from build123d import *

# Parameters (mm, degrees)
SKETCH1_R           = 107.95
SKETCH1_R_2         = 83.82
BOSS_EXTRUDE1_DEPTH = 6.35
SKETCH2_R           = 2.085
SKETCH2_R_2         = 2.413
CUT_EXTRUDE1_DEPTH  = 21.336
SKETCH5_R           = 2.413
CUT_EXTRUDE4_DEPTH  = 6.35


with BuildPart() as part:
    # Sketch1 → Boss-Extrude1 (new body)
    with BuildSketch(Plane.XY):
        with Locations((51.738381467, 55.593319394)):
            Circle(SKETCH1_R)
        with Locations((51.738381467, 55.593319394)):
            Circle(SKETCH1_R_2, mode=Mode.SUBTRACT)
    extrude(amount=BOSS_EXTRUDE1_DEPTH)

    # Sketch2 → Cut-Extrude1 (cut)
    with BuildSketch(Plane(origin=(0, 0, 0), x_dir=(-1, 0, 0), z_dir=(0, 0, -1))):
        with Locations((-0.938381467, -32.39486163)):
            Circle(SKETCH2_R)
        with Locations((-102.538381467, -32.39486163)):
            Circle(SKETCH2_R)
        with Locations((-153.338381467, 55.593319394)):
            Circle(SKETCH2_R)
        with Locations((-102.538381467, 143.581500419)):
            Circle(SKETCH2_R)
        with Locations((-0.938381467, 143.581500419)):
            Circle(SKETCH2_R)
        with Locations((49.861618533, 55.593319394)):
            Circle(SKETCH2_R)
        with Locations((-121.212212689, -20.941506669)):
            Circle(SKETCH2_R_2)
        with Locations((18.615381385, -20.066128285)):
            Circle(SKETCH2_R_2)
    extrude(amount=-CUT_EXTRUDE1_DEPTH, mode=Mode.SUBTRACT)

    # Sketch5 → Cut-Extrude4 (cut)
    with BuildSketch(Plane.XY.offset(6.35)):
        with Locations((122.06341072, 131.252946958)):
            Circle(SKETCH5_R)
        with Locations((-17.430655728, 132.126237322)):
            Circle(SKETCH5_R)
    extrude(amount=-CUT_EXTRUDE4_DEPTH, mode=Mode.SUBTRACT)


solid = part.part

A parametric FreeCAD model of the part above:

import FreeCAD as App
import Part
import Sketcher
Q = App.Units.Quantity

doc = App.newDocument("Part")
body = doc.addObject("PartDesign::Body", "Body")

sketch1 = doc.addObject("Sketcher::SketchObject", "Sketch")
body.addObject(sketch1)
sketch1.AttachmentSupport = (doc.XY_Plane, [""])
sketch1.MapMode = "FlatFace"
sketch1.addGeometry([
    Part.Circle(App.Vector(52, 56, 0), App.Vector(0, 0, 1), 108),
    Part.Circle(App.Vector(52, 56, 0), App.Vector(0, 0, 1), 84),
], False)
sketch1.addConstraint([
    Sketcher.Constraint("Coincident", 1, 3, 0, 3),
    Sketcher.Constraint("Diameter", 0, Q("8.5 in")),
    Sketcher.Constraint("Diameter", 1, Q("6.6 in")),
    Sketcher.Constraint("DistanceX", -1, 1, 0, 3, 51.738381),
    Sketcher.Constraint("DistanceY", -1, 1, 0, 3, 55.593319),
])
pad1 = doc.addObject("PartDesign::Pad", "Pad")
body.addObject(pad1)
pad1.Profile = sketch1
pad1.Length = Q("0.25 in")

sketch2 = doc.addObject("Sketcher::SketchObject", "Sketch001")
body.addObject(sketch2)
sketch2.AttachmentSupport = (doc.XY_Plane, [""])
sketch2.MapMode = "FlatFace"
sketch2.addGeometry([
    Part.Circle(App.Vector(0.9, -32.4, 0), App.Vector(0, 0, 1), 2.1),
    Part.Circle(App.Vector(102.5, -32.4, 0), App.Vector(0, 0, 1), 2.1),
    Part.Circle(App.Vector(153.3, 55.6, 0), App.Vector(0, 0, 1), 2.1),
    Part.Circle(App.Vector(102.5, 143.6, 0), App.Vector(0, 0, 1), 2.1),
    Part.Circle(App.Vector(0.9, 143.6, 0), App.Vector(0, 0, 1), 2.1),
    Part.Circle(App.Vector(-49.9, 55.6, 0), App.Vector(0, 0, 1), 2.1),
    Part.Circle(App.Vector(121.2, -20.9, 0), App.Vector(0, 0, 1), 2.4),
    Part.Circle(App.Vector(-18.6, -20.1, 0), App.Vector(0, 0, 1), 2.4),
], False)
sketch2.addConstraint([
    Sketcher.Constraint("Equal", 0, 1),
    Sketcher.Constraint("Equal", 1, 2),
    Sketcher.Constraint("Equal", 2, 3),
    Sketcher.Constraint("Equal", 3, 4),
    Sketcher.Constraint("Equal", 4, 5),
    Sketcher.Constraint("Equal", 6, 7),
    Sketcher.Constraint("Horizontal", 0, 3, 1, 3),
    Sketcher.Constraint("Horizontal", 3, 3, 4, 3),
    Sketcher.Constraint("Horizontal", 2, 3, 5, 3),
    Sketcher.Constraint("Vertical", 1, 3, 3, 3),
    Sketcher.Constraint("Vertical", 0, 3, 4, 3),
    Sketcher.Constraint("Diameter", 6, Q("0.19 in")),
    Sketcher.Constraint("DistanceX", 0, 3, 1, 3, Q("4 in")),
    Sketcher.Constraint("DistanceX", 1, 3, 2, 3, Q("2 in")),
    Sketcher.Constraint("DistanceX", 5, 3, 0, 3, Q("2 in")),
    Sketcher.Constraint("Diameter", 0, 4.17),
    Sketcher.Constraint("DistanceY", -1, 1, 3, 3, 143.5815),
    Sketcher.Constraint("DistanceX", -1, 1, 0, 3, 0.938381),
    Sketcher.Constraint("DistanceY", 0, 3, -1, 1, 32.394862),
    Sketcher.Constraint("DistanceY", -1, 1, 2, 3, 55.593319),
    Sketcher.Constraint("DistanceX", 7, 3, -1, 1, 18.615381),
    Sketcher.Constraint("DistanceY", 7, 3, -1, 1, 20.066128),
    Sketcher.Constraint("DistanceX", 1, 3, 6, 3, 18.673831),
    Sketcher.Constraint("DistanceY", 6, 3, 7, 3, 0.875378),
])
pocket1 = doc.addObject("PartDesign::Pocket", "Pocket")
body.addObject(pocket1)
pocket1.Profile = sketch2
pocket1.Length = Q("0.84 in")
pocket1.Reversed = True

sketch3 = doc.addObject("Sketcher::SketchObject", "Sketch002")
body.addObject(sketch3)
sketch3.AttachmentSupport = (doc.XY_Plane, [""])
sketch3.MapMode = "FlatFace"
sketch3.AttachmentOffset = App.Placement(App.Vector(0, 0, 0.25 * 25.4), App.Rotation())
sketch3.addGeometry([
    Part.Circle(App.Vector(122.1, 131.3, 0), App.Vector(0, 0, 1), 2.4),
    Part.Circle(App.Vector(-17.4, 132.1, 0), App.Vector(0, 0, 1), 2.4),
], False)
sketch3.addConstraint([
    Sketcher.Constraint("Equal", 0, 1),
    Sketcher.Constraint("Diameter", 0, Q("0.19 in")),
    Sketcher.Constraint("DistanceX", -1, 1, 0, 3, 122.063411),
    Sketcher.Constraint("DistanceY", 0, 3, 1, 3, 0.87329),
    Sketcher.Constraint("DistanceY", -1, 1, 0, 3, 131.252947),
    Sketcher.Constraint("DistanceX", 1, 3, -1, 1, 17.430656),
])
pocket2 = doc.addObject("PartDesign::Pocket", "Pocket001")
body.addObject(pocket2)
pocket2.Profile = sketch3
pocket2.Length = Q("0.25 in")

doc.recompute()
